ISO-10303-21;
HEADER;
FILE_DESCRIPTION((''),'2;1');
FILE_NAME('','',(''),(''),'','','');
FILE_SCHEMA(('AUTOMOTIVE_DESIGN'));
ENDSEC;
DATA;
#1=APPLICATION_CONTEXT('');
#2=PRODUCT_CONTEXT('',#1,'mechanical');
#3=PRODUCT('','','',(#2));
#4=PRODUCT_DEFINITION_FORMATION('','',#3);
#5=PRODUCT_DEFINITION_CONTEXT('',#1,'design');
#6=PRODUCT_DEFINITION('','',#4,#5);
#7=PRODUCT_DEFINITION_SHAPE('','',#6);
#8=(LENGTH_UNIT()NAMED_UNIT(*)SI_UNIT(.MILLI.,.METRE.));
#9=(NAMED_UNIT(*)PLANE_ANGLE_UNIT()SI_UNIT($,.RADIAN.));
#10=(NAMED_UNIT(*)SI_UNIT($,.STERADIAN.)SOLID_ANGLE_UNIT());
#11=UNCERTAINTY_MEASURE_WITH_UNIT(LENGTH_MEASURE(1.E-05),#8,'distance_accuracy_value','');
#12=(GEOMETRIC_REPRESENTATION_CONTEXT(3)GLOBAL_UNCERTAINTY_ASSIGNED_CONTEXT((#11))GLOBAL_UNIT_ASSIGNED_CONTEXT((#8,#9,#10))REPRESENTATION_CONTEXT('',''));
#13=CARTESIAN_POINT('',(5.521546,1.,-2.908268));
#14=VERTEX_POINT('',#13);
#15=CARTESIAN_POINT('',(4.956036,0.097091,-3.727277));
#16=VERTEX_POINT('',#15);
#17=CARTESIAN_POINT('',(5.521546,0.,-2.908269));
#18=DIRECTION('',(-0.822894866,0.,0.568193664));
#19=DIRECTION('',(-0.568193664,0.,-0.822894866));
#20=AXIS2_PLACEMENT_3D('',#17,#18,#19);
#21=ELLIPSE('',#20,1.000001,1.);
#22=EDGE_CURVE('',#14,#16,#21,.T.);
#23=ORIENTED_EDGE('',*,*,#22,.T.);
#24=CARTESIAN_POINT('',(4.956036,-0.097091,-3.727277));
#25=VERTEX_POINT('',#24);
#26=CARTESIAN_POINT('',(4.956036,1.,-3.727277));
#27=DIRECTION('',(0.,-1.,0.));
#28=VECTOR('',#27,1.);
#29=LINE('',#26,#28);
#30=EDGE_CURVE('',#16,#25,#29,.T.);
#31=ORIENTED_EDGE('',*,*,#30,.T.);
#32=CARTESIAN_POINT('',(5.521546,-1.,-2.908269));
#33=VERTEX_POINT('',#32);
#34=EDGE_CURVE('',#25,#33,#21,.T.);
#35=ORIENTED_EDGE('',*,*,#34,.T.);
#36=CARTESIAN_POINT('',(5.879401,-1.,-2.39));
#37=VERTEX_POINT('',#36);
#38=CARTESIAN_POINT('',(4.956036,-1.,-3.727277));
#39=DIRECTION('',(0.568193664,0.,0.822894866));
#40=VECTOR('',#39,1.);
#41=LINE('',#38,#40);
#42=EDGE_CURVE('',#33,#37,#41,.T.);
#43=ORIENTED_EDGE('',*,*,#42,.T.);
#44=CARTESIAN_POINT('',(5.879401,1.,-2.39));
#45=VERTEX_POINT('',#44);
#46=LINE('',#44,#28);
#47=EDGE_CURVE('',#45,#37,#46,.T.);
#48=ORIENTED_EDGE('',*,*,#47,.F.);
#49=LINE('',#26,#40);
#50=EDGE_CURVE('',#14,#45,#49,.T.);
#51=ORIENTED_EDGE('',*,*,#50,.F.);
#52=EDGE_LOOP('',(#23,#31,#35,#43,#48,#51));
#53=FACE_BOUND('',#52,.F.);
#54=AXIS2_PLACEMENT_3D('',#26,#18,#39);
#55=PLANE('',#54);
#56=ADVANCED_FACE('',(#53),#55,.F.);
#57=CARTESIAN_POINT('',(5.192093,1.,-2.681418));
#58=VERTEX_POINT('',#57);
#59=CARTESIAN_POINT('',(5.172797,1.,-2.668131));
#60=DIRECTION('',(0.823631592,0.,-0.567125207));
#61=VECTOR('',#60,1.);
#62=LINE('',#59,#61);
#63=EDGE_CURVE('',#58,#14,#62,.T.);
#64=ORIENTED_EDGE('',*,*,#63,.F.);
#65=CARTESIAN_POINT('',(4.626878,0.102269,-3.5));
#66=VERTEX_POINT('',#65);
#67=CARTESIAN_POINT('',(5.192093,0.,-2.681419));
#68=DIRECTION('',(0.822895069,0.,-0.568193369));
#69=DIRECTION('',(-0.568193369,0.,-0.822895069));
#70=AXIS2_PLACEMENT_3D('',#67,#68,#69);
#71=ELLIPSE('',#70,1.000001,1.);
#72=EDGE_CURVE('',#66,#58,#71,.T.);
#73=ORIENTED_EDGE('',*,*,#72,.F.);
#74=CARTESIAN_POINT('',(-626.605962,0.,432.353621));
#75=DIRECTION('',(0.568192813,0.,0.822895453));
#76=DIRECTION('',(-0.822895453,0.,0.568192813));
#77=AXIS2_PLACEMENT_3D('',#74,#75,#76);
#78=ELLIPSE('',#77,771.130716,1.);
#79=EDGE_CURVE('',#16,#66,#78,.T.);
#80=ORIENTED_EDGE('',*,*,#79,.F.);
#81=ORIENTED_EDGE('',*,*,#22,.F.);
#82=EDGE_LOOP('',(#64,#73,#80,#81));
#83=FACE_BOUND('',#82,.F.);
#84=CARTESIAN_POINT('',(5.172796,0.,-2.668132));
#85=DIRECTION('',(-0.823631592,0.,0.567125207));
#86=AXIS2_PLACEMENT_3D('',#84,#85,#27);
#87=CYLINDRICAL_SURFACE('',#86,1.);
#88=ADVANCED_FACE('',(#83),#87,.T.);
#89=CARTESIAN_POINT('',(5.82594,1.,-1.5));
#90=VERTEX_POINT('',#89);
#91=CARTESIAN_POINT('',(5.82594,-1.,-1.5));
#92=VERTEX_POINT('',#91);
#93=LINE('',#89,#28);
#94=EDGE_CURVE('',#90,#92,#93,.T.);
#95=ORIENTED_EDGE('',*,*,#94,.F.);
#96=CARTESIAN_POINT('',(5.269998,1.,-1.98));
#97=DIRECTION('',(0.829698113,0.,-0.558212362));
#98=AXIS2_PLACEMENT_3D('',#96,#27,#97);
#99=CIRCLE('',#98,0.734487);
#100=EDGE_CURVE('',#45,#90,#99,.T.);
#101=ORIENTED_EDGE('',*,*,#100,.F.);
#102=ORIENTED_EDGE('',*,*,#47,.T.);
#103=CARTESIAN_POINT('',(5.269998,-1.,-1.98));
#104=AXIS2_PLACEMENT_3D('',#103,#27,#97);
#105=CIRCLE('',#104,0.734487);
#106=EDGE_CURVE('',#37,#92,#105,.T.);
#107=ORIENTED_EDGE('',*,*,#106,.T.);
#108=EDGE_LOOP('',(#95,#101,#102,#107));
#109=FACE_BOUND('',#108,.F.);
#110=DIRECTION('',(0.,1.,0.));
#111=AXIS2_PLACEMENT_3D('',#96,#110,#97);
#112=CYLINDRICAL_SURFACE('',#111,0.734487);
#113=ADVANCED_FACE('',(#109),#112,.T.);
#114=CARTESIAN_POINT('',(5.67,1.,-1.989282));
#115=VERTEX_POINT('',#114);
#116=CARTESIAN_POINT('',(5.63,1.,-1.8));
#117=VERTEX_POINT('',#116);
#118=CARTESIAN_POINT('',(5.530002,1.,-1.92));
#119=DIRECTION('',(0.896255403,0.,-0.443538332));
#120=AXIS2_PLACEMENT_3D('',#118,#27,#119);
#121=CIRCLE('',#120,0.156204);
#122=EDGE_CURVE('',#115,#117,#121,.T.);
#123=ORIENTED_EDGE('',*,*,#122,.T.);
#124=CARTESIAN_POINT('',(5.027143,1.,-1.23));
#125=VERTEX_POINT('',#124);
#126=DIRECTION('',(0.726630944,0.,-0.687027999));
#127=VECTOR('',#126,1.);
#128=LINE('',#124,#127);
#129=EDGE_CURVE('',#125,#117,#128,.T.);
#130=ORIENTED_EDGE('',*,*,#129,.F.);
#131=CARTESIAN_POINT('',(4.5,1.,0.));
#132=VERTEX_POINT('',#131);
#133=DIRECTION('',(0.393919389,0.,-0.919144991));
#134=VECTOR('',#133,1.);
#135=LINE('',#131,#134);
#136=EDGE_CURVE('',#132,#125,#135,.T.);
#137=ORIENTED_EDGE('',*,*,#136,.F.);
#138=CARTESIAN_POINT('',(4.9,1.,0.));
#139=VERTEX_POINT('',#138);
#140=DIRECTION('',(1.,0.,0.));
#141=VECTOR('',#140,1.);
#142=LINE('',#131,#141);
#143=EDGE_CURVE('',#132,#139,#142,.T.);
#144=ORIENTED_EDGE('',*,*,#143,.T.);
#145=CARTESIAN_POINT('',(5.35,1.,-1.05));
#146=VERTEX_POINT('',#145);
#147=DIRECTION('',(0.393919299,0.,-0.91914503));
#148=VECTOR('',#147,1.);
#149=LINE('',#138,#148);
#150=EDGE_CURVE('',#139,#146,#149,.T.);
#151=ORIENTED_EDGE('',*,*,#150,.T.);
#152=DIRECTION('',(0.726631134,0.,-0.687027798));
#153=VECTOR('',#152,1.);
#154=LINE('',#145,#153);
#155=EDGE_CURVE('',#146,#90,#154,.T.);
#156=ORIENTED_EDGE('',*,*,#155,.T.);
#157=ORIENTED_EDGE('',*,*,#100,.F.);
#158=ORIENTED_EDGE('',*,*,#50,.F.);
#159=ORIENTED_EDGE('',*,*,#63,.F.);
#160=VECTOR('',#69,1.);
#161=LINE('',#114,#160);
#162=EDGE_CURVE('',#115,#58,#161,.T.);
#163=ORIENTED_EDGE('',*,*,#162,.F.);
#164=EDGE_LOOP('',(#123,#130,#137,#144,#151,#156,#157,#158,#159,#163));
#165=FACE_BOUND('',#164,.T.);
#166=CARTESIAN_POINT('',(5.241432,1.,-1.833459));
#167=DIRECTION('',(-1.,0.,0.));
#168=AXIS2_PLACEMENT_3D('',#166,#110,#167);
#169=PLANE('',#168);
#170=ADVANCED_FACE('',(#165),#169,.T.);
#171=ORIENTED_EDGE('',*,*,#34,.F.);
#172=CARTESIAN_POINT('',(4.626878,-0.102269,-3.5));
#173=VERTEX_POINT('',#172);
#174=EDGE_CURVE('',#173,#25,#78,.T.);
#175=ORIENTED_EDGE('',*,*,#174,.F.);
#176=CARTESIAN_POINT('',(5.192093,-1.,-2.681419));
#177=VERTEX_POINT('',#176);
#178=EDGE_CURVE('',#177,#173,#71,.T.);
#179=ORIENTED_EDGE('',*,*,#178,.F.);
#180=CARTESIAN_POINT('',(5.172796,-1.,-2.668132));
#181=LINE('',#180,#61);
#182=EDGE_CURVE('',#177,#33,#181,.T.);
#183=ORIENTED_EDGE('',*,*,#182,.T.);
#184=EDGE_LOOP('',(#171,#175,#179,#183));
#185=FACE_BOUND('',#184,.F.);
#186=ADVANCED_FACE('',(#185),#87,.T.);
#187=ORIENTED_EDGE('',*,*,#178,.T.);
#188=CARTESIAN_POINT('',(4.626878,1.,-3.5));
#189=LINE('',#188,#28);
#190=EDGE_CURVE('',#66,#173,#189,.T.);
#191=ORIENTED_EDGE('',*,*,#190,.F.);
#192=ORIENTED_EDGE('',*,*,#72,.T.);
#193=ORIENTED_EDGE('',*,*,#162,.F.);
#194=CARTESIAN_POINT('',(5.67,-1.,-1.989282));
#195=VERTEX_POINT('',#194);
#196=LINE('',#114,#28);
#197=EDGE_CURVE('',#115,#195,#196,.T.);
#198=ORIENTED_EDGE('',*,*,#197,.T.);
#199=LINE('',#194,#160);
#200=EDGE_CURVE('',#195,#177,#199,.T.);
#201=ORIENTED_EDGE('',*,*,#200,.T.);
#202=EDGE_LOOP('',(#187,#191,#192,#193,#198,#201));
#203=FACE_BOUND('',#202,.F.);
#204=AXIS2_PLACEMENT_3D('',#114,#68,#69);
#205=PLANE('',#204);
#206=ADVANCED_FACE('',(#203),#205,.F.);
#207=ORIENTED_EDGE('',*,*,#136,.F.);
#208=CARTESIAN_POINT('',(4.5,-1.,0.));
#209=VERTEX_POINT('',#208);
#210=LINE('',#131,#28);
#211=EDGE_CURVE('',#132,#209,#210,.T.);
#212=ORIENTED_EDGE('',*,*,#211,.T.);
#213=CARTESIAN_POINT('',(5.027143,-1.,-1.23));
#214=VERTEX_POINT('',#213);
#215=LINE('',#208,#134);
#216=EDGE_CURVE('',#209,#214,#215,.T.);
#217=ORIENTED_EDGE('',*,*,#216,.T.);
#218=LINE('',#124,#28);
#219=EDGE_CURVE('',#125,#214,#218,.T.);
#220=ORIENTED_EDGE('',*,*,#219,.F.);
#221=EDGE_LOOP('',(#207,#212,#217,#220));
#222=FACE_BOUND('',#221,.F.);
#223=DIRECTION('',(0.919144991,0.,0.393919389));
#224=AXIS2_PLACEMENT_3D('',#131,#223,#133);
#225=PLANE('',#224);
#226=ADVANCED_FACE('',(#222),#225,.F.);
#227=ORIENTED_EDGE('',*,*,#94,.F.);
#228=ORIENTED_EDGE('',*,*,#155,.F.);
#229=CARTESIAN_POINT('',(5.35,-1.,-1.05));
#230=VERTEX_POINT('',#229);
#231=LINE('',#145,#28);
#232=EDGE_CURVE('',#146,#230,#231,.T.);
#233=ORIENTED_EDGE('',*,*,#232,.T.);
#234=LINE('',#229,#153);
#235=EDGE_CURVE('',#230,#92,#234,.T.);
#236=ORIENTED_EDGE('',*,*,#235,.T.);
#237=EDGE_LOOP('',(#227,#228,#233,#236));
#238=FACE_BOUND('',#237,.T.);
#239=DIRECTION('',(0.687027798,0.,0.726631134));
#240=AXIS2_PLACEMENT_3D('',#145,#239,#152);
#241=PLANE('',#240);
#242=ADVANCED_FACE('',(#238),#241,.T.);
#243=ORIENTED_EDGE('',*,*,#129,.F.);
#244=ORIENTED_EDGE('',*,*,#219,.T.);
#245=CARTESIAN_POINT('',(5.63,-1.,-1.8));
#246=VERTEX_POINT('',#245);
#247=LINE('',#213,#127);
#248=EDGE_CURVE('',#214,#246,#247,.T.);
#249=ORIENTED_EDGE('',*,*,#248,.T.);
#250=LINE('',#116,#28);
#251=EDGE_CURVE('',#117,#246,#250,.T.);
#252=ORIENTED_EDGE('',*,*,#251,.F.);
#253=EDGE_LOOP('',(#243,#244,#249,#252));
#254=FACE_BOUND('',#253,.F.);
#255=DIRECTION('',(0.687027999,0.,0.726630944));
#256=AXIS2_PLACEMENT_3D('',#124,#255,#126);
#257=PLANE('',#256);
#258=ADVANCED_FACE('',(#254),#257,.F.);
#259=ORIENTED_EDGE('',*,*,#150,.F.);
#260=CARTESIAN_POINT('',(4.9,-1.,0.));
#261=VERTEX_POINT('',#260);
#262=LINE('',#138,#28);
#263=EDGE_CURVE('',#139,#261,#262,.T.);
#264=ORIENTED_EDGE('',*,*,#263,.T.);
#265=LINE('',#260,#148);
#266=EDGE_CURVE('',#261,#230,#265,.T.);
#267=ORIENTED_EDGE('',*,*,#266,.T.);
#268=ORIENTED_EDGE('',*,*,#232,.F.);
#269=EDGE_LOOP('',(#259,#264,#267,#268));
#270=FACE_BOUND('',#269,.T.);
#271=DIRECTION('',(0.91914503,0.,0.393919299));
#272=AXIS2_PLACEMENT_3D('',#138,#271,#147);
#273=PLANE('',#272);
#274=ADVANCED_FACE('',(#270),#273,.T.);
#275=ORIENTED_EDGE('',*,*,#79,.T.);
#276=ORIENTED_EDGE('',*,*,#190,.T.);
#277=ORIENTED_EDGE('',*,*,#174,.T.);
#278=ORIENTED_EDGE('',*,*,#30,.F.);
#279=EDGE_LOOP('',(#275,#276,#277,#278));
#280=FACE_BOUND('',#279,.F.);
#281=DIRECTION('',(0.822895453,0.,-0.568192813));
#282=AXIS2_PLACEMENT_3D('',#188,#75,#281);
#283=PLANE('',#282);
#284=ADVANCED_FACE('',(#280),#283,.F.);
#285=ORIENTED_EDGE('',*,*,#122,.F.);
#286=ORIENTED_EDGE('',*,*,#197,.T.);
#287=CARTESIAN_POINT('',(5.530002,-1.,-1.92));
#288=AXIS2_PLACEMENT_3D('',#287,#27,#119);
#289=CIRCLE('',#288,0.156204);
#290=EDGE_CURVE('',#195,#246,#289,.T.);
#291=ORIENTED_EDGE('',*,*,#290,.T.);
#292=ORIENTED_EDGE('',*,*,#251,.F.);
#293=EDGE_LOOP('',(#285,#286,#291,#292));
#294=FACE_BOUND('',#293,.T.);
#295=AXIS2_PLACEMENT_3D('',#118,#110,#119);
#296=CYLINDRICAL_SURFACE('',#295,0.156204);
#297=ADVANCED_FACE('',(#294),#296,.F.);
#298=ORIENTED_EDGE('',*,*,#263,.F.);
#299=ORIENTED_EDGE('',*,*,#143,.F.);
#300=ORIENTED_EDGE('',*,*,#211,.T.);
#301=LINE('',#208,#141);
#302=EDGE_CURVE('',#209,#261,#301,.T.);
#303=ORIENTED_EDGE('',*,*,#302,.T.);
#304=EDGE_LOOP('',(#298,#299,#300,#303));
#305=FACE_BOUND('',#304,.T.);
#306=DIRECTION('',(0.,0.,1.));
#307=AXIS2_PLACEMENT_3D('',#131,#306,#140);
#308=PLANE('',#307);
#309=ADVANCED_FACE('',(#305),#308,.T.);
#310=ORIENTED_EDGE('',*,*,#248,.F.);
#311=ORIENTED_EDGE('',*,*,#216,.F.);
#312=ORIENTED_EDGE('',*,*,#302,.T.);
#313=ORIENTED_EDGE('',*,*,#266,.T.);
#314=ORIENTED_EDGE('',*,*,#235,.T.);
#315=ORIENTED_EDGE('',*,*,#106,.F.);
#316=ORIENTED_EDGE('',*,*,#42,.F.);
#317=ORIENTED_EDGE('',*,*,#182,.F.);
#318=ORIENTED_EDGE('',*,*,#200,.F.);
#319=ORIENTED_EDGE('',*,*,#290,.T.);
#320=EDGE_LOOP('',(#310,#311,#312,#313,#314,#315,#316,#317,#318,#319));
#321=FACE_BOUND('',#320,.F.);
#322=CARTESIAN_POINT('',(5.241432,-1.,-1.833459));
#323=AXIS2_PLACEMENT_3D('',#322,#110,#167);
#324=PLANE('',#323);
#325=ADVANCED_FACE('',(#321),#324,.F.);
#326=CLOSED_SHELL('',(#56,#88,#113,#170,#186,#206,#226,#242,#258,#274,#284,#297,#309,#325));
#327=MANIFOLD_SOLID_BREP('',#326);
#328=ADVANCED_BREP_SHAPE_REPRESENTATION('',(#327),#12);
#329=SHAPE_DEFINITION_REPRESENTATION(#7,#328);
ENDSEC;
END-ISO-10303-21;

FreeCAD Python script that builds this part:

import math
import FreeCAD as App
import Part
import Sketcher
from FreeCAD import Vector

doc = App.newDocument("Part")
body = doc.addObject("PartDesign::Body", "Body")

# Sketch on YZ plane
sketch1 = body.newObject("Sketcher::SketchObject", "Sketch")
sketch1.AttachmentSupport = (doc.getObject("YZ_Plane"), [""])
sketch1.MapMode = "FlatFace"
sketch1.addGeometry([
    Part.ArcOfCircle(Part.Circle(Vector(0, 1, 0), Vector(0, 0, 1), 1), math.radians(180), math.radians(360)),
    Part.LineSegment(Vector(-1, 1, 0), Vector(-1, 0, 0)),
    Part.LineSegment(Vector(-1, 0, 0), Vector(1, 0, 0)),
    Part.LineSegment(Vector(1, 0, 0), Vector(1, 1, 0)),
], False)
sketch1.addConstraint([
    Sketcher.Constraint("Tangent", 0, 1, 1, 1),
    Sketcher.Constraint("Coincident", 1, 2, 2, 1),
    Sketcher.Constraint("Coincident", 2, 2, 3, 1),
    Sketcher.Constraint("Tangent", 3, 2, 0, 2),
    Sketcher.Constraint("Vertical", 1),
    Sketcher.Constraint("Horizontal", 2),
    Sketcher.Constraint("Vertical", 3),
    Sketcher.Constraint("Symmetric", 1, 2, 2, 2, -1, 1),
    Sketcher.Constraint("Radius", 0, 1.0),
    Sketcher.Constraint("DistanceY", 1, 2, 1, 1, 1.01),
])
pad1 = body.newObject("PartDesign::Pad", "Pad")
pad1.Profile = sketch1
pad1.Length = 0.45
body2 = doc.addObject("PartDesign::Body", "Body001")
doc.recompute()

body.Placement = App.Placement(Vector(4.6, 0, -3.5), App.Rotation(Vector(0, 1, 0), 34.55))
boolean = body2.newObject("PartDesign::Boolean", "Boolean")
boolean.Type = "Fuse"
boolean.addObjects([body])
body3 = doc.addObject("PartDesign::Body", "Body002")

# Sketch on XZ plane
sketch2 = body3.newObject("Sketcher::SketchObject", "Sketch001")
sketch2.AttachmentSupport = (doc.getObject("XZ_Plane002"), [""])
sketch2.MapMode = "FlatFace"
sketch2.addGeometry([
    Part.LineSegment(Vector(4.9, 0, 0), Vector(4.5, 0, 0)),  # 0
    Part.LineSegment(Vector(4.5, 0, 0), Vector(5.03, -1.23, 0)),  # 1
    Part.LineSegment(Vector(5.03, -1.23, 0), Vector(5.63, -1.8, 0)),  # 2
    Part.ArcOfCircle(Part.Circle(Vector(5.53, -1.92, 0), Vector(0, 0, 1), 0.16), math.radians(-26), math.radians(50)),  # 3
    Part.LineSegment(Vector(5.67, -1.99, 0), Vector(4.63, -3.5, 0)),  # 4
    Part.LineSegment(Vector(4.63, -3.5, 0), Vector(4.96, -3.73, 0)),  # 5
    Part.LineSegment(Vector(4.96, -3.73, 0), Vector(5.88, -2.39, 0)),  # 6
    Part.ArcOfCircle(Part.Circle(Vector(5.27, -1.98, 0), Vector(0, 0, 1), 0.73), math.radians(-34), math.radians(41)),  # 7
    Part.LineSegment(Vector(5.83, -1.5, 0), Vector(5.35, -1.05, 0)),  # 8
    Part.LineSegment(Vector(5.35, -1.05, 0), Vector(4.9, 0, 0)),  # 9
], False)
sketch2.addConstraint([
    Sketcher.Constraint("Coincident", 0, 2, 1, 1),
    Sketcher.Constraint("Coincident", 1, 2, 2, 1),
    Sketcher.Constraint("Coincident", 2, 2, 3, 2),
    Sketcher.Constraint("Coincident", 3, 1, 4, 1),
    Sketcher.Constraint("Coincident", 4, 2, 5, 1),
    Sketcher.Constraint("Coincident", 5, 2, 6, 1),
    Sketcher.Constraint("Coincident", 6, 2, 7, 1),
    Sketcher.Constraint("Coincident", 7, 2, 8, 1),
    Sketcher.Constraint("Coincident", 8, 2, 9, 1),
    Sketcher.Constraint("Coincident", 9, 2, 0, 1),
    Sketcher.Constraint("Horizontal", 0),
    Sketcher.Constraint("PointOnObject", 0, 2, -1),
    Sketcher.Constraint("Perpendicular", 4, 5),
    Sketcher.Constraint("Perpendicular", 5, 6),
    Sketcher.Constraint("Parallel", 2, 8),
    Sketcher.Constraint("Parallel", 1, 9),
    Sketcher.Constraint("DistanceX", 0, 2, 0, 1, 0.4),
    Sketcher.Constraint("Distance", 5, 0.4),
    Sketcher.Constraint("DistanceX", -1, 1, 0, 2, 4.5),
    Sketcher.Constraint("DistanceY", 2, 2, -1, 1, 1.8),
    Sketcher.Constraint("DistanceY", 4, 2, -1, 1, 3.5),
    Sketcher.Constraint("DistanceY", 7, 2, -1, 1, 1.5),
    Sketcher.Constraint("DistanceX", 3, 3, 2, 2, 0.099998),
    Sketcher.Constraint("DistanceX", 7, 3, 3, 1, 0.400002),
    Sketcher.Constraint("DistanceX", -1, 1, 3, 3, 5.530002),
    Sketcher.Constraint("DistanceY", 3, 3, -1, 1, 1.92),
    Sketcher.Constraint("DistanceX", -1, 1, 7, 3, 5.269998),
    Sketcher.Constraint("DistanceY", 7, 3, -1, 1, 1.98),
    Sketcher.Constraint("DistanceY", 1, 2, -1, 1, 1.23),
    Sketcher.Constraint("DistanceY", 6, 2, -1, 1, 2.39),
    Sketcher.Constraint("DistanceX", -1, 1, 8, 2, 5.35),
    Sketcher.Constraint("DistanceY", 8, 2, -1, 1, 1.05),
])
pad2 = body3.newObject("PartDesign::Pad", "Pad001")
pad2.Profile = sketch2
pad2.Length = 2
body4 = doc.addObject("PartDesign::Body", "Body003")
doc.recompute()

body3.Placement = App.Placement(Vector(0, 1, 0), App.Rotation(Vector(0, 0, 1), 0))
boolean2 = body4.newObject("PartDesign::Boolean", "Boolean001")
boolean2.Type = "Fuse"
boolean2.addObjects([body3])
doc.recompute()

boolean3 = body4.newObject("PartDesign::Boolean", "Boolean002")
boolean3.Type = "Cut"
boolean3.addObjects([body2])

doc.recompute()
